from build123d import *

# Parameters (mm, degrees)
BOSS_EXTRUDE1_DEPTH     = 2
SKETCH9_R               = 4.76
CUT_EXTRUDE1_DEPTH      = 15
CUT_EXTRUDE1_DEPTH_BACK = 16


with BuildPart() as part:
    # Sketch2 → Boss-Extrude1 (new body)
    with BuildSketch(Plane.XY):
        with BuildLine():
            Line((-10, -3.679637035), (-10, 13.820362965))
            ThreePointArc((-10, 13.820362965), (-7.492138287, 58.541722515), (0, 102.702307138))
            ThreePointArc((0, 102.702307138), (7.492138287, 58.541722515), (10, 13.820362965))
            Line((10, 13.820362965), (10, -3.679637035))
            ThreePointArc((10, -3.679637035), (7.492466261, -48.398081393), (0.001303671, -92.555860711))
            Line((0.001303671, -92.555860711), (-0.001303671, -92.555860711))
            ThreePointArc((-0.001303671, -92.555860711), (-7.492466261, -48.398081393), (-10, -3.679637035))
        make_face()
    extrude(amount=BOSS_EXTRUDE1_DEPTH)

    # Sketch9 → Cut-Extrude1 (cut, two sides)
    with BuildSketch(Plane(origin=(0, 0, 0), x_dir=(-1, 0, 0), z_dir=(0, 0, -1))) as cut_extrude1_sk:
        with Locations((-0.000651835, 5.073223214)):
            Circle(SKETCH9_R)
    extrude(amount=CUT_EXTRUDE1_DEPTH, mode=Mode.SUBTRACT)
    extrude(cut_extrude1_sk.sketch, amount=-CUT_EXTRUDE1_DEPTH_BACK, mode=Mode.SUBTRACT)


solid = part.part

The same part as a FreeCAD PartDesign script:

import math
import FreeCAD as App
import Part
import Sketcher

V = App.Vector
Q = App.Units.Quantity

doc = App.newDocument("Part")
body = doc.addObject("PartDesign::Body", "Body")

# Sketch on XY plane
sketch1 = doc.addObject("Sketcher::SketchObject", "Sketch")
body.addObject(sketch1)
sketch1.AttachmentSupport = (doc.XY_Plane, [""])
sketch1.MapMode = "FlatFace"
sketch1.addGeometry([
    Part.LineSegment(V(-10, 13.8204, 0), V(-10, -3.6796, 0)),  # 0
    Part.ArcOfCircle(Part.Circle(V(390, -3.6796, 0), V(0, 0, 1), 400), math.radians(180), math.radians(192.84)),  # 1
    Part.LineSegment(V(-0.0013, -92.5559, 0), V(0.0013, -92.5559, 0)),  # 2
    Part.ArcOfCircle(Part.Circle(V(-390, -3.6796, 0), V(0, 0, 1), 400), math.radians(-12.84), math.radians(0)),  # 3
    Part.LineSegment(V(10, -3.6796, 0), V(10, 13.8204, 0)),  # 4
    Part.ArcOfCircle(Part.Circle(V(-390, 13.8204, 0), V(0, 0, 1), 400), math.radians(0), math.radians(12.84)),  # 5
    Part.ArcOfCircle(Part.Circle(V(390, 13.8204, 0), V(0, 0, 1), 400), math.radians(167.16), math.radians(180)),  # 6
], False)
sketch1.addConstraint([
    Sketcher.Constraint("Tangent", 0, 2, 1, 1),
    Sketcher.Constraint("Coincident", 1, 2, 2, 1),
    Sketcher.Constraint("Coincident", 2, 2, 3, 1),
    Sketcher.Constraint("Tangent", 3, 2, 4, 1),
    Sketcher.Constraint("Tangent", 4, 2, 5, 1),
    Sketcher.Constraint("Coincident", 5, 2, 6, 1),
    Sketcher.Constraint("Tangent", 6, 2, 0, 1),
    Sketcher.Constraint("Vertical", 0),
    Sketcher.Constraint("Horizontal", 2),
    Sketcher.Constraint("Vertical", 4),
    Sketcher.Constraint("Equal", 1, 3),
    Sketcher.Constraint("Equal", 3, 5),
    Sketcher.Constraint("Equal", 5, 6),
    Sketcher.Constraint("Symmetric", 1, 3, 3, 3, -2),
    Sketcher.Constraint("Horizontal", 5, 3, 6, 3),
    Sketcher.Constraint("Radius", 1, Q("400 mm")),
    Sketcher.Constraint("DistanceY", 0, 2, 0, 1, Q("17.5 mm")),
    Sketcher.Constraint("DistanceX", -1, 1, 1, 3, Q("390 mm")),
    Sketcher.Constraint("DistanceX", 2, 1, 2, 2, Q("0.002607 mm")),
    Sketcher.Constraint("DistanceY", 2, 2, -1, 1, Q("92.555861 mm")),
])
pad1 = doc.addObject("PartDesign::Pad", "Pad")
body.addObject(pad1)
pad1.Profile = sketch1
pad1.Length = 2

# Sketch on XY plane
sketch2 = doc.addObject("Sketcher::SketchObject", "Sketch001")
body.addObject(sketch2)
sketch2.AttachmentSupport = (doc.XY_Plane, [""])
sketch2.MapMode = "FlatFace"
sketch2.addGeometry(Part.Circle(V(0, 5.1, 0), V(0, 0, 1), 4.8), False)
sketch2.addConstraint([
    Sketcher.Constraint("Diameter", 0, Q("9.52 mm")),
    Sketcher.Constraint("DistanceX", -1, 1, 0, 3, Q("0.000652 mm")),
    Sketcher.Constraint("DistanceY", -1, 1, 0, 3, Q("5.073223 mm")),
])
pocket1 = doc.addObject("PartDesign::Pocket", "Pocket")
body.addObject(pocket1)
pocket1.Profile = sketch2
pocket1.Type = "ThroughAll"
pocket1.Midplane = True

doc.recompute()
